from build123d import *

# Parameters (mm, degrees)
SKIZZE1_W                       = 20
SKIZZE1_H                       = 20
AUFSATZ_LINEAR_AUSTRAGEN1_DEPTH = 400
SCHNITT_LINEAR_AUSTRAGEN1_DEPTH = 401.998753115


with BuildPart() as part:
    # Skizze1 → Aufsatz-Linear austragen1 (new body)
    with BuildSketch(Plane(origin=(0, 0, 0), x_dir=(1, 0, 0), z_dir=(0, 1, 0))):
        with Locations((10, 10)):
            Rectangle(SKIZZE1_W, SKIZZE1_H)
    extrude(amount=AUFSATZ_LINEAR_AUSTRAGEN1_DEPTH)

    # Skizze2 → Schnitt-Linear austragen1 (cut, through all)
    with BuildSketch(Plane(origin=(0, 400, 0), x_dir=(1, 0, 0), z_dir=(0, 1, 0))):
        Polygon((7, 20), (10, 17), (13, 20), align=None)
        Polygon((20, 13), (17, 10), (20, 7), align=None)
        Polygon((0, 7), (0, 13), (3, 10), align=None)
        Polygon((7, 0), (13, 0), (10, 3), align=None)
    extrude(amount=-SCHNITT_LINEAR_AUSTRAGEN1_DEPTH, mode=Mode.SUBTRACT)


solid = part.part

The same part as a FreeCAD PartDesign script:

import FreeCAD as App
import Part
import Sketcher
from FreeCAD import Vector


def add_polygon(sketch, points):
    """Adds a closed chain of lines whose ends are joined by coincident constraints."""
    first, n = sketch.GeometryCount, len(points)
    for a, b in zip(points, points[1:] + points[:1]):
        sketch.addGeometry(Part.LineSegment(App.Vector(*a, 0), App.Vector(*b, 0)), False)
    for i in range(n):
        sketch.addConstraint(Sketcher.Constraint("Coincident", first + i, 2, first + (i + 1) % n, 1))

doc = App.newDocument("Part")
params = doc.addObject("Spreadsheet::Sheet", "Params")
for row, (alias, value) in enumerate([
    ("sketch1_width", "20 mm"),
    ("pad1_length", "400 mm"),
    ("sketch2_width", "6 mm"),
], start=1):
    params.set(f"A{row}", alias)
    params.set(f"B{row}", "=" + value)
    params.setAlias(f"B{row}", alias)

body = doc.addObject("PartDesign::Body", "Body")

# Sketch on XZ plane
sketch1 = body.newObject("Sketcher::SketchObject", "Sketch")
sketch1.AttachmentSupport = (doc.getObject("XZ_Plane"), [""])
sketch1.MapMode = "FlatFace"
add_polygon(sketch1, [(0, -20), (0, 0), (20, 0), (20, -20)])  # lines 0-3
sketch1.addConstraint(Sketcher.Constraint("Vertical", 0))
sketch1.addConstraint(Sketcher.Constraint("Horizontal", 1))
sketch1.addConstraint(Sketcher.Constraint("Vertical", 2))
sketch1.addConstraint(Sketcher.Constraint("Horizontal", 3))
sketch1.addConstraint(Sketcher.Constraint("Coincident", 0, 2, -1, 1))
sketch1.addConstraint(Sketcher.Constraint("Equal", 3, 0))
sketch1.addConstraint(Sketcher.Constraint("DistanceX", 1, 1, 1, 2, 20.0))
sketch1.setExpression("Constraints[10]", "Params.sketch1_width")
pad1 = body.newObject("PartDesign::Pad", "Pad")
pad1.Profile = sketch1
pad1.setExpression("Length", "Params.pad1_length")
pad1.Reversed = True

# Sketch on XZ plane
sketch2 = body.newObject("Sketcher::SketchObject", "Sketch001")
sketch2.AttachmentSupport = (doc.getObject("XZ_Plane"), [""])
sketch2.MapMode = "FlatFace"
sketch2.AttachmentOffset = App.Placement(Vector(0, 0, -400), App.Rotation())
add_polygon(sketch2, [(7, -20), (10, -17), (13, -20)])  # lines 0-2
add_polygon(sketch2, [(20, -13), (17, -10), (20, -7)])  # lines 3-5
add_polygon(sketch2, [(0, -13), (0, -7), (3, -10)])  # lines 6-8
add_polygon(sketch2, [(7, 0), (13, 0), (10, -3)])  # lines 9-11
sketch2.addConstraint(Sketcher.Constraint("Horizontal", 2))
sketch2.addConstraint(Sketcher.Constraint("Vertical", 5))
sketch2.addConstraint(Sketcher.Constraint("Vertical", 6))
sketch2.addConstraint(Sketcher.Constraint("Horizontal", 9))
sketch2.addConstraint(Sketcher.Constraint("PointOnObject", 6, 2, -2))
sketch2.addConstraint(Sketcher.Constraint("PointOnObject", 9, 2, -1))
sketch2.addConstraint(Sketcher.Constraint("Perpendicular", 0, 1))
sketch2.addConstraint(Sketcher.Constraint("Parallel", 1, 3))
sketch2.addConstraint(Sketcher.Constraint("Perpendicular", 3, 4))
sketch2.addConstraint(Sketcher.Constraint("Perpendicular", 4, 7))
sketch2.addConstraint(Sketcher.Constraint("Perpendicular", 7, 8))
sketch2.addConstraint(Sketcher.Constraint("Parallel", 8, 10))
sketch2.addConstraint(Sketcher.Constraint("Perpendicular", 10, 11))
sketch2.addConstraint(Sketcher.Constraint("Horizontal", 4, 2, 6, 2))
sketch2.addConstraint(Sketcher.Constraint("Horizontal", 3, 2, 7, 2))
sketch2.addConstraint(Sketcher.Constraint("Horizontal", 5, 2, 8, 2))
sketch2.addConstraint(Sketcher.Constraint("Vertical", 1, 2, 9, 2))
sketch2.addConstraint(Sketcher.Constraint("Vertical", 0, 2, 10, 2))
sketch2.addConstraint(Sketcher.Constraint("Equal", 9, 5))
sketch2.addConstraint(Sketcher.Constraint("DistanceX", 2, 2, 2, 1, 6.0))
sketch2.addConstraint(Sketcher.Constraint("DistanceX", -1, 1, 0, 2, 10.0))
sketch2.addConstraint(Sketcher.Constraint("DistanceY", 0, 2, -1, 1, 17.0))
sketch2.addConstraint(Sketcher.Constraint("DistanceX", -1, 1, 3, 2, 17.0))
sketch2.addConstraint(Sketcher.Constraint("DistanceY", 3, 2, -1, 1, 10.0))
sketch2.setExpression("Constraints[31]", "Params.sketch2_width")
pocket1 = body.newObject("PartDesign::Pocket", "Pocket")
pocket1.Profile = sketch2
pocket1.Type = "ThroughAll"
pocket1.Reversed = True

doc.recompute()
